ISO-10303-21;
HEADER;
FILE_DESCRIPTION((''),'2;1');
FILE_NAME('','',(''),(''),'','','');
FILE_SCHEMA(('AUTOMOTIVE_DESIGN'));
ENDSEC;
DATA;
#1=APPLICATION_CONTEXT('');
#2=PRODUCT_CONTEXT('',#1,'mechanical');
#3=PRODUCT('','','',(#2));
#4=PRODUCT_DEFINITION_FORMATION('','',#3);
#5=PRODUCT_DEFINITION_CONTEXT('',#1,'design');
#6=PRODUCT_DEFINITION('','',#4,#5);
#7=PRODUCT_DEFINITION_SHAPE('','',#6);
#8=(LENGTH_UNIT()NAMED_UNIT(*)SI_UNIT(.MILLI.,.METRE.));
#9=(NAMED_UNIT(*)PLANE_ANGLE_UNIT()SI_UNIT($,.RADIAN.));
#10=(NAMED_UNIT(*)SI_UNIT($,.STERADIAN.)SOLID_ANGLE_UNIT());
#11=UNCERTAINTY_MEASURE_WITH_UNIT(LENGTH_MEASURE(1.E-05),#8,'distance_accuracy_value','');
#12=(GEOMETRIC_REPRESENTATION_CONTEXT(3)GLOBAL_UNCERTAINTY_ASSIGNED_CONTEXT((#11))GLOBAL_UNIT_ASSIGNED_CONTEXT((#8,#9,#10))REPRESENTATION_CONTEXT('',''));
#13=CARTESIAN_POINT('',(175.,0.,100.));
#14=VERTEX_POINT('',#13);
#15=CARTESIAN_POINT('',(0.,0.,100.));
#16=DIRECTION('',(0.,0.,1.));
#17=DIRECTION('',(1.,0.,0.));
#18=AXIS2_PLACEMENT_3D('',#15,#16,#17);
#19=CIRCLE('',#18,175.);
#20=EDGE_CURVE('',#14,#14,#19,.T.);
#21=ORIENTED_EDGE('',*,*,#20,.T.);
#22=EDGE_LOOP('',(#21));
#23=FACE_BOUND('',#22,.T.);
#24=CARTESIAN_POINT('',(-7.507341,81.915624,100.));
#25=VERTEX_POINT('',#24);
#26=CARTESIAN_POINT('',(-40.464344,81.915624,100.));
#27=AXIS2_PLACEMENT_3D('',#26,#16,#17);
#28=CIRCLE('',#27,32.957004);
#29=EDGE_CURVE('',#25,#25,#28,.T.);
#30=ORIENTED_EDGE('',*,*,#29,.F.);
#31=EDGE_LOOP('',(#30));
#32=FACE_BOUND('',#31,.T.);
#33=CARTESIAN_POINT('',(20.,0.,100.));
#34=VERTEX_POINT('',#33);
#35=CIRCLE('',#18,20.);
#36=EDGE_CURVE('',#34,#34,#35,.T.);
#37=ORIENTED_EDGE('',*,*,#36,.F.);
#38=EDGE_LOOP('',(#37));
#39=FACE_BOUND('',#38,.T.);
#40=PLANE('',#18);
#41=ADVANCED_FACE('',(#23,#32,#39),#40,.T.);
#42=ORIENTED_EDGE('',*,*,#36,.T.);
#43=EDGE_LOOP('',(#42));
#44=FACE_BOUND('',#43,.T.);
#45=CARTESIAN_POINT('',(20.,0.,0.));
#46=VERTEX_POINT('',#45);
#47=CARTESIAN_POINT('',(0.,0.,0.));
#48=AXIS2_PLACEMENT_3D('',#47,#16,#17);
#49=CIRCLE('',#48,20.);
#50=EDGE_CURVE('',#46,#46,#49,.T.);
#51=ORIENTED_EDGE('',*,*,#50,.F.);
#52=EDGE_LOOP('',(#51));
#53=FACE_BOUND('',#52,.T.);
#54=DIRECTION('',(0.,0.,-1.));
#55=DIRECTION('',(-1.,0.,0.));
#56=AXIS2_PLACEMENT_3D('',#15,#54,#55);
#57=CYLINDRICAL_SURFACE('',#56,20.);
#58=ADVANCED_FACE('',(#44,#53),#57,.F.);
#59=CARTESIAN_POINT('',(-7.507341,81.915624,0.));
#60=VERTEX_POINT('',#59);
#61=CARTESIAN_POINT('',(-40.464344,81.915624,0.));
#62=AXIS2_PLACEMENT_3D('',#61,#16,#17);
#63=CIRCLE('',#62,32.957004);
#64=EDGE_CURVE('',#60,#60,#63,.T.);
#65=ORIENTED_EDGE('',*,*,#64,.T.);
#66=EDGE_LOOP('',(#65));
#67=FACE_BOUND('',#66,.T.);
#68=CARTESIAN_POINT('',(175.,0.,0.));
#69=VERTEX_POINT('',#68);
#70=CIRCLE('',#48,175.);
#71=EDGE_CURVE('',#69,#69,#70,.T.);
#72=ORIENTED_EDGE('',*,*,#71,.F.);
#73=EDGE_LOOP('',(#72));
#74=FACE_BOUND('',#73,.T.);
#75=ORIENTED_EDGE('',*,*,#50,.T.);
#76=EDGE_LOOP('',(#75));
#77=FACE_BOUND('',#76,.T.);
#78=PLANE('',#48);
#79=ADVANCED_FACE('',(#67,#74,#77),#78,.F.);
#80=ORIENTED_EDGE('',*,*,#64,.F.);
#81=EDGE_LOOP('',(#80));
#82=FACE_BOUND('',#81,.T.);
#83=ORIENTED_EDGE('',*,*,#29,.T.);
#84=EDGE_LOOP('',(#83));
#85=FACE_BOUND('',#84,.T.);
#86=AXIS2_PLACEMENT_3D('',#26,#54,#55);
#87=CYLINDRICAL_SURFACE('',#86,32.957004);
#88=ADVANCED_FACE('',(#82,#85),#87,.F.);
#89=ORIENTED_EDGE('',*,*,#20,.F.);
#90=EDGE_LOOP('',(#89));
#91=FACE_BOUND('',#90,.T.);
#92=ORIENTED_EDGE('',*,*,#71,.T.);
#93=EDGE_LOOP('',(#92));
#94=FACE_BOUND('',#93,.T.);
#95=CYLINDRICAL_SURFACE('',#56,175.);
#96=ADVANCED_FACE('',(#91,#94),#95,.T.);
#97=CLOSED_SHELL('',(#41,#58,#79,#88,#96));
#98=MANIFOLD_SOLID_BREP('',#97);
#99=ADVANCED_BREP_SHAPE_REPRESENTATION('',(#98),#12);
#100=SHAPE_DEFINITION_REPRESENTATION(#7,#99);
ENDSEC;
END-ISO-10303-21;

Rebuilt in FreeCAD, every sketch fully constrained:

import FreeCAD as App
import Part
import Sketcher

V = App.Vector
Q = App.Units.Quantity

doc = App.newDocument("Part")
body = doc.addObject("PartDesign::Body", "Body")

# Sketch on XY plane
sketch1 = doc.addObject("Sketcher::SketchObject", "Sketch")
body.addObject(sketch1)
sketch1.AttachmentSupport = (doc.XY_Plane, [""])
sketch1.MapMode = "FlatFace"
sketch1.addGeometry([
    Part.Circle(V(0, 0, 0), V(0, 0, 1), 175),
    Part.Circle(V(0, 0, 0), V(0, 0, 1), 20),
    Part.Circle(V(-40, 82, 0), V(0, 0, 1), 33),
], False)
sketch1.addConstraint([
    Sketcher.Constraint("Coincident", 0, 3, -1, 1),
    Sketcher.Constraint("Coincident", 1, 3, -1, 1),
    Sketcher.Constraint("Diameter", 0, Q("350 mm")),
    Sketcher.Constraint("Diameter", 1, Q("40 mm")),
    Sketcher.Constraint("Diameter", 2, Q("65.914008 mm")),
    Sketcher.Constraint("DistanceX", 2, 3, -1, 1, Q("40.464344 mm")),
    Sketcher.Constraint("DistanceY", -1, 1, 2, 3, Q("81.915624 mm")),
])
pad1 = doc.addObject("PartDesign::Pad", "Pad")
body.addObject(pad1)
pad1.Profile = sketch1
pad1.Length = 100

doc.recompute()
